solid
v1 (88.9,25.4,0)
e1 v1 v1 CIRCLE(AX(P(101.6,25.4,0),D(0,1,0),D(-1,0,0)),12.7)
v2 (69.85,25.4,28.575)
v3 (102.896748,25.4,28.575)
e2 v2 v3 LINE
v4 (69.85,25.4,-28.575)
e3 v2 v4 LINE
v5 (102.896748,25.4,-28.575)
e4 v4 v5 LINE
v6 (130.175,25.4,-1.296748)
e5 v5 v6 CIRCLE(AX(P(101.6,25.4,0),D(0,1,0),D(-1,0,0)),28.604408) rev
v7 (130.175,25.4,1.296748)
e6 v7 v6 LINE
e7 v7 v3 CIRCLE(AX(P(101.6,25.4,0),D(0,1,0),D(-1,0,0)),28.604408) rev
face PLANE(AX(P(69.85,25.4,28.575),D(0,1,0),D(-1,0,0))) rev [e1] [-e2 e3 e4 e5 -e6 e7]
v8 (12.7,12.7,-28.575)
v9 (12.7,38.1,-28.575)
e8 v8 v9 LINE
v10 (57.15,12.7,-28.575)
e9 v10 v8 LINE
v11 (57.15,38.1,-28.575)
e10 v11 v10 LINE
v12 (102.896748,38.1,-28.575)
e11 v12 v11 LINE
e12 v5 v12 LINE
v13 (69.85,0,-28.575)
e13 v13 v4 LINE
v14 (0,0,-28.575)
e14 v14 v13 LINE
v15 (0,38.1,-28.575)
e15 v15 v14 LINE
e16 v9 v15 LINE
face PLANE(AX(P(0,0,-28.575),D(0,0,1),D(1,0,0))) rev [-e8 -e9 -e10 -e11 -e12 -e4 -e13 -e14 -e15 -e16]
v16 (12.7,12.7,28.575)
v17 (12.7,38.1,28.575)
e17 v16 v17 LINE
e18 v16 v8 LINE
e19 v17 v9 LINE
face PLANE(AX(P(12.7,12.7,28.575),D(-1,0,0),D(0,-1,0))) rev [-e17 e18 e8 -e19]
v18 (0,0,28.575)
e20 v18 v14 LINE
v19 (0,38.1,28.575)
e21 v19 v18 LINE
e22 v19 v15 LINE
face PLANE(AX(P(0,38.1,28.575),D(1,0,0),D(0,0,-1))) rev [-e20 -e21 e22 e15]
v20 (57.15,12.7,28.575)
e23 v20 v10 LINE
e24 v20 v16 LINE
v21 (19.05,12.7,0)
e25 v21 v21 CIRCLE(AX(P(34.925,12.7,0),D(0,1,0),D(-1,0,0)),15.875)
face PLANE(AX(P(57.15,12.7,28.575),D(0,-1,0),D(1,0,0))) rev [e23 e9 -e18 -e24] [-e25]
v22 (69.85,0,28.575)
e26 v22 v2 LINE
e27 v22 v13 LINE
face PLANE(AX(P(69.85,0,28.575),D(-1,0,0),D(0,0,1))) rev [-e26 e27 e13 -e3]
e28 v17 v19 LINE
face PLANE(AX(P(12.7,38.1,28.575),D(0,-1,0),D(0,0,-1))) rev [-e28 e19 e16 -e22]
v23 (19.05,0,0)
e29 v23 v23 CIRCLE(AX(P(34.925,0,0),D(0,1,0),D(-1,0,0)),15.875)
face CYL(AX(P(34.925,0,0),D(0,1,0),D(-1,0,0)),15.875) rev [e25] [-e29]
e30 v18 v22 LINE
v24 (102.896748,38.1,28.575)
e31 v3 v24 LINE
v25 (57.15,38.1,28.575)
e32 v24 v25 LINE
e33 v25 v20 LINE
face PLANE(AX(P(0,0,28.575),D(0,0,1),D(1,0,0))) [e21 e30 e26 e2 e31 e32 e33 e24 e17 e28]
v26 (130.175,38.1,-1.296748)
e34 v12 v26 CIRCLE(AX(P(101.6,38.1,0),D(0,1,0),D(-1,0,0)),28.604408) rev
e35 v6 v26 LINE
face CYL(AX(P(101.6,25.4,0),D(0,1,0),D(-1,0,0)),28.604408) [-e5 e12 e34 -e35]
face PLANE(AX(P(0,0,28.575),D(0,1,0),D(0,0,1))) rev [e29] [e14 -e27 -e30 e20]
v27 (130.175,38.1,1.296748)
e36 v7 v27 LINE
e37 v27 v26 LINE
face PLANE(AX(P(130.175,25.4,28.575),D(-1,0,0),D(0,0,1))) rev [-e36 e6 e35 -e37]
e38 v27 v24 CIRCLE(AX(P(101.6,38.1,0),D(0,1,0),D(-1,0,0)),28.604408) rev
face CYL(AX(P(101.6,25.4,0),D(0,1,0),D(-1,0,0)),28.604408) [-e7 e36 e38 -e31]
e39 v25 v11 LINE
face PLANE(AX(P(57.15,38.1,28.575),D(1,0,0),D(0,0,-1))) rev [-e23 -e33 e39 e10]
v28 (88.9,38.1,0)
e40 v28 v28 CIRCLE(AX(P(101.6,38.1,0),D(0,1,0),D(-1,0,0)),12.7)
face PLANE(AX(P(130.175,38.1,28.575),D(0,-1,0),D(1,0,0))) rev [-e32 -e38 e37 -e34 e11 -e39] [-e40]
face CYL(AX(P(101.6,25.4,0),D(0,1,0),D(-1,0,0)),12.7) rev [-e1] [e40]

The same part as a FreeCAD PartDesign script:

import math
import FreeCAD as App
import Part
import Sketcher

V = App.Vector
Q = App.Units.Quantity

doc = App.newDocument("Part")
body = doc.addObject("PartDesign::Body", "Body")

# Sketch on XY plane
sketch1 = doc.addObject("Sketcher::SketchObject", "Sketch")
body.addObject(sketch1)
sketch1.AttachmentSupport = (doc.XY_Plane, [""])
sketch1.MapMode = "FlatFace"
sketch1.addGeometry(Part.LineSegment(V(0, 0, 0), V(70, 0, 0)), False)
sketch1.addGeometry(Part.LineSegment(V(70, 0, 0), V(70, 25, 0)), False)
sketch1.addGeometry(Part.LineSegment(V(70, 25, 0), V(130, 25, 0)), False)
sketch1.addGeometry(Part.LineSegment(V(130, 25, 0), V(130, 38, 0)), False)
sketch1.addGeometry(Part.LineSegment(V(130, 38, 0), V(57, 38, 0)), False)
sketch1.addGeometry(Part.LineSegment(V(57, 38, 0), V(57, 13, 0)), False)
sketch1.addGeometry(Part.LineSegment(V(57, 13, 0), V(13, 13, 0)), False)
sketch1.addGeometry(Part.LineSegment(V(13, 13, 0), V(13, 38, 0)), False)
sketch1.addGeometry(Part.LineSegment(V(13, 38, 0), V(0, 38, 0)), False)
sketch1.addGeometry(Part.LineSegment(V(0, 38, 0), V(0, 0, 0)), False)
sketch1.addConstraint(Sketcher.Constraint("Coincident", 0, 2, 1, 1))
sketch1.addConstraint(Sketcher.Constraint("Coincident", 1, 2, 2, 1))
sketch1.addConstraint(Sketcher.Constraint("Coincident", 2, 2, 3, 1))
sketch1.addConstraint(Sketcher.Constraint("Coincident", 3, 2, 4, 1))
sketch1.addConstraint(Sketcher.Constraint("Coincident", 4, 2, 5, 1))
sketch1.addConstraint(Sketcher.Constraint("Coincident", 5, 2, 6, 1))
sketch1.addConstraint(Sketcher.Constraint("Coincident", 6, 2, 7, 1))
sketch1.addConstraint(Sketcher.Constraint("Coincident", 7, 2, 8, 1))
sketch1.addConstraint(Sketcher.Constraint("Coincident", 8, 2, 9, 1))
sketch1.addConstraint(Sketcher.Constraint("Coincident", 9, 2, 0, 1))
sketch1.addConstraint(Sketcher.Constraint("Horizontal", 0))
sketch1.addConstraint(Sketcher.Constraint("Vertical", 1))
sketch1.addConstraint(Sketcher.Constraint("Horizontal", 2))
sketch1.addConstraint(Sketcher.Constraint("Vertical", 3))
sketch1.addConstraint(Sketcher.Constraint("Horizontal", 4))
sketch1.addConstraint(Sketcher.Constraint("Vertical", 5))
sketch1.addConstraint(Sketcher.Constraint("Horizontal", 6))
sketch1.addConstraint(Sketcher.Constraint("Vertical", 7))
sketch1.addConstraint(Sketcher.Constraint("Horizontal", 8))
sketch1.addConstraint(Sketcher.Constraint("Vertical", 9))
sketch1.addConstraint(Sketcher.Constraint("Coincident", 9, 2, -1, 1))
sketch1.addConstraint(Sketcher.Constraint("Horizontal", 4, 2, 7, 2))
sketch1.addConstraint(Sketcher.Constraint("Equal", 8, 3))
sketch1.addConstraint(Sketcher.Constraint("Equal", 1, 5))
sketch1.addConstraint(Sketcher.Constraint("DistanceY", 1, 1, 1, 2, Q("1 in")))
sketch1.addConstraint(Sketcher.Constraint("DistanceX", 8, 2, 8, 1, Q("0.5 in")))
sketch1.addConstraint(Sketcher.Constraint("DistanceX", 0, 1, 0, 2, Q("2.75 in")))
sketch1.addConstraint(Sketcher.Constraint("DistanceX", 6, 2, 6, 1, Q("1.75 in")))
sketch1.addConstraint(Sketcher.Constraint("DistanceX", 2, 1, 2, 2, Q("2.375 in")))
pad1 = doc.addObject("PartDesign::Pad", "Pad")
body.addObject(pad1)
pad1.Profile = sketch1
pad1.Length = Q("2.25 in")
pad1.Midplane = True

# Sketch on XZ plane
sketch2 = doc.addObject("Sketcher::SketchObject", "Sketch001")
body.addObject(sketch2)
sketch2.AttachmentSupport = (doc.XZ_Plane, [""])
sketch2.MapMode = "FlatFace"
sketch2.AttachmentOffset = App.Placement(V(0, 0, -0.5 * 25.4), App.Rotation())
sketch2.addGeometry(Part.Circle(V(35, 0, 0), V(0, 0, 1), 16), False)
sketch2.addConstraint(Sketcher.Constraint("PointOnObject", 0, 3, -1))
sketch2.addConstraint(Sketcher.Constraint("Diameter", 0, Q("1.25 in")))
sketch2.addConstraint(Sketcher.Constraint("DistanceX", -1, 1, 0, 3, Q("1.375 in")))
pocket1 = doc.addObject("PartDesign::Pocket", "Pocket")
body.addObject(pocket1)
pocket1.Profile = sketch2
pocket1.Length = Q("0.5 in")
pocket1.Reversed = True

# Sketch on XZ plane
sketch3 = doc.addObject("Sketcher::SketchObject", "Sketch002")
body.addObject(sketch3)
sketch3.AttachmentSupport = (doc.XZ_Plane, [""])
sketch3.MapMode = "FlatFace"
sketch3.AttachmentOffset = App.Placement(V(0, 0, -1.5 * 25.4), App.Rotation())
sketch3.addGeometry(Part.Circle(V(102, 0, 0), V(0, 0, 1), 13), False)
sketch3.addGeometry(Part.LineSegment(V(130, -29, 0), V(103, -29, 0)), False)
sketch3.addGeometry(Part.ArcOfCircle(Part.Circle(V(102, 0, 0), V(0, 0, 1), 29), math.radians(-87), math.radians(-3)), False)
sketch3.addGeometry(Part.LineSegment(V(130, -1, 0), V(130, -29, 0)), False)
sketch3.addGeometry(Part.LineSegment(V(130, 29, 0), V(130, 1, 0)), False)
sketch3.addGeometry(Part.ArcOfCircle(Part.Circle(V(102, 0, 0), V(0, 0, 1), 29), math.radians(3), math.radians(87)), False)
sketch3.addGeometry(Part.LineSegment(V(103, 29, 0), V(130, 29, 0)), False)
sketch3.addConstraint(Sketcher.Constraint("Coincident", 1, 2, 2, 1))
sketch3.addConstraint(Sketcher.Constraint("Coincident", 2, 2, 3, 1))
sketch3.addConstraint(Sketcher.Constraint("Coincident", 3, 2, 1, 1))
sketch3.addConstraint(Sketcher.Constraint("Coincident", 4, 2, 5, 1))
sketch3.addConstraint(Sketcher.Constraint("Coincident", 5, 2, 6, 1))
sketch3.addConstraint(Sketcher.Constraint("Coincident", 6, 2, 4, 1))
sketch3.addConstraint(Sketcher.Constraint("Horizontal", 1))
sketch3.addConstraint(Sketcher.Constraint("Vertical", 3))
sketch3.addConstraint(Sketcher.Constraint("Vertical", 4))
sketch3.addConstraint(Sketcher.Constraint("Horizontal", 6))
sketch3.addConstraint(Sketcher.Constraint("Coincident", 2, 3, 0, 3))
sketch3.addConstraint(Sketcher.Constraint("Coincident", 5, 3, 0, 3))
sketch3.addConstraint(Sketcher.Constraint("Equal", 2, 5))
sketch3.addConstraint(Sketcher.Constraint("Symmetric", 2, 2, 4, 2, -1))
sketch3.addConstraint(Sketcher.Constraint("Vertical", 1, 2, 5, 2))
sketch3.addConstraint(Sketcher.Constraint("Equal", 6, 3))
sketch3.addConstraint(Sketcher.Constraint("Diameter", 0, Q("1 in")))
sketch3.addConstraint(Sketcher.Constraint("DistanceX", -1, 1, 0, 3, Q("4 in")))
sketch3.addConstraint(Sketcher.Constraint("DistanceY", 1, 2, -1, 1, Q("1.125 in")))
sketch3.addConstraint(Sketcher.Constraint("Radius", 2, 28.604408))
pocket2 = doc.addObject("PartDesign::Pocket", "Pocket001")
body.addObject(pocket2)
pocket2.Profile = sketch3
pocket2.Length = Q("0.5 in")
pocket2.Reversed = True

doc.recompute()
